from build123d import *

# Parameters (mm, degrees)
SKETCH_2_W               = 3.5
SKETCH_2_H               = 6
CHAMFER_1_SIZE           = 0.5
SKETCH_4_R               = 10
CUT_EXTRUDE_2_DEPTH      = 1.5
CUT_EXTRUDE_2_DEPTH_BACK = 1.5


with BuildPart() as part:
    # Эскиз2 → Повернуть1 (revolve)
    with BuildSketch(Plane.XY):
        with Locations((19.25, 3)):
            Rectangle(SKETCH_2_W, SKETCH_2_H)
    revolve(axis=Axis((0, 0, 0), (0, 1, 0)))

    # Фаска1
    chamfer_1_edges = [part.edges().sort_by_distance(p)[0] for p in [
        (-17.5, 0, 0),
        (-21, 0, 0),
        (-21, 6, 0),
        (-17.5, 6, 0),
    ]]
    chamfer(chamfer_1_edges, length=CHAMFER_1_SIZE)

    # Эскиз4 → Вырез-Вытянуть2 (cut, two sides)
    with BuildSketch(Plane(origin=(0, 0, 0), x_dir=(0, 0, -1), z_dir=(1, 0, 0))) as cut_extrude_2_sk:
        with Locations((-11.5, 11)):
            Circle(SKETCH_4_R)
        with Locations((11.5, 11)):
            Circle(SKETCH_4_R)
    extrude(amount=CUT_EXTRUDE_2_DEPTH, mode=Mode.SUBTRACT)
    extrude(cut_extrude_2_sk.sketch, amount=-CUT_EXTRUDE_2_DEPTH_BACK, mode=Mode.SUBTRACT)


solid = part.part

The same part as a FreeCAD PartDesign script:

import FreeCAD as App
import Part
import Sketcher

V = App.Vector


def edges_at(feature, points):
    """Names of the edges that pass closest to the given points."""
    edges = feature.Shape.Edges
    near = lambda p: min(range(len(edges)), key=lambda i: edges[i].distToShape(Part.Vertex(*p))[0])
    return sorted({f"Edge{near(p) + 1}" for p in points})


def add_polygon(sketch, points):
    """Adds a closed chain of lines whose ends are joined by coincident constraints."""
    first, n = sketch.GeometryCount, len(points)
    for a, b in zip(points, points[1:] + points[:1]):
        sketch.addGeometry(Part.LineSegment(App.Vector(*a, 0), App.Vector(*b, 0)), False)
    for i in range(n):
        sketch.addConstraint(Sketcher.Constraint("Coincident", first + i, 2, first + (i + 1) % n, 1))

doc = App.newDocument("Part")
body = doc.addObject("PartDesign::Body", "Body")

# Sketch on XY plane
sketch1 = doc.addObject("Sketcher::SketchObject", "Sketch")
body.addObject(sketch1)
sketch1.AttachmentSupport = (doc.XY_Plane, [""])
sketch1.MapMode = "FlatFace"
add_polygon(sketch1, [(17.5, 6), (17.5, 0), (21, 0), (21, 6)])  # lines 0-3
sketch1.addConstraint(Sketcher.Constraint("Vertical", 0))
sketch1.addConstraint(Sketcher.Constraint("Horizontal", 1))
sketch1.addConstraint(Sketcher.Constraint("Vertical", 2))
sketch1.addConstraint(Sketcher.Constraint("Horizontal", 3))
sketch1.addConstraint(Sketcher.Constraint("PointOnObject", 0, 2, -1))
sketch1.addConstraint(Sketcher.Constraint("DistanceY", 0, 2, 0, 1, 6.0))
sketch1.addConstraint(Sketcher.Constraint("DistanceX", 1, 1, 1, 2, 3.5))
sketch1.addConstraint(Sketcher.Constraint("DistanceX", -1, 1, 1, 2, 21.0))
revolution = doc.addObject("PartDesign::Revolution", "Revolution")
body.addObject(revolution)
revolution.Profile = sketch1
revolution.ReferenceAxis = (sketch1, ["V_Axis"])
revolution.Angle = 360
doc.recompute()

chamfer = doc.addObject("PartDesign::Chamfer", "Chamfer")
body.addObject(chamfer)
chamfer.Base = (revolution, edges_at(revolution, [
    (-17.5, 0, 0),
    (-21, 0, 0),
    (-21, 6, 0),
    (-17.5, 6, 0),
]))
chamfer.Size = 0.5

# Sketch on YZ plane
sketch2 = doc.addObject("Sketcher::SketchObject", "Sketch001")
body.addObject(sketch2)
sketch2.AttachmentSupport = (doc.YZ_Plane, [""])
sketch2.MapMode = "FlatFace"
sketch2.addGeometry(Part.Circle(V(11, 12, 0), V(0, 0, 1), 10), False)
sketch2.addGeometry(Part.Circle(V(11, -12, 0), V(0, 0, 1), 10), False)
sketch2.addConstraint(Sketcher.Constraint("Equal", 0, 1))
sketch2.addConstraint(Sketcher.Constraint("Symmetric", 0, 3, 1, 3, -1))
sketch2.addConstraint(Sketcher.Constraint("Diameter", 0, 20.0))
sketch2.addConstraint(Sketcher.Constraint("DistanceX", -1, 1, 0, 3, 11.0))
sketch2.addConstraint(Sketcher.Constraint("DistanceY", 1, 3, 0, 3, 23.0))
pocket1 = doc.addObject("PartDesign::Pocket", "Pocket")
body.addObject(pocket1)
pocket1.Profile = sketch2
pocket1.Type = "TwoLengths"
pocket1.Length = 1.5
pocket1.Length2 = 1.5
pocket1.Reversed = True

doc.recompute()
